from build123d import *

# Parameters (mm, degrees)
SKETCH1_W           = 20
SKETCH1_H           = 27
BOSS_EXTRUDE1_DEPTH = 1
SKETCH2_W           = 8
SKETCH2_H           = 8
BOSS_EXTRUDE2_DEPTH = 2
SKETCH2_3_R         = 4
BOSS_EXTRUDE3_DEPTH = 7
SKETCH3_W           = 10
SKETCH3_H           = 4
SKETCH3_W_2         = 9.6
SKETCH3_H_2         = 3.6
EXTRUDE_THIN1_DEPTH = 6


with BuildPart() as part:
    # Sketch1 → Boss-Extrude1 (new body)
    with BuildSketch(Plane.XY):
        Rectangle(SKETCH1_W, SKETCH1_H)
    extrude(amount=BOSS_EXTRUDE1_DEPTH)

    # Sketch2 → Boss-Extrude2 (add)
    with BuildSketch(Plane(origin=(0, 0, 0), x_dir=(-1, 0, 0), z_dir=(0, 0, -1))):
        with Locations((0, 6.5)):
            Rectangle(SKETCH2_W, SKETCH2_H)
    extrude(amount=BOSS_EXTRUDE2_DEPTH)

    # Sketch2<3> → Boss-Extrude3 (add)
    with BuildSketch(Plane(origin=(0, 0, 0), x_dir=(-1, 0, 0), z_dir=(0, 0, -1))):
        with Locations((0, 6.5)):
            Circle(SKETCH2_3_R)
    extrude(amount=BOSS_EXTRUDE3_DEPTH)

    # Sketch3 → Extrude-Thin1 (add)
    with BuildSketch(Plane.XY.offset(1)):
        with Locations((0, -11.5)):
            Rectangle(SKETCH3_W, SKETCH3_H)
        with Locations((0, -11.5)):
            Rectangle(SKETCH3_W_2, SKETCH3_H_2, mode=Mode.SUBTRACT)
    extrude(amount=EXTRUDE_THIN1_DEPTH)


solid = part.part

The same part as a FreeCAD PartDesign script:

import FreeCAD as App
import Part
import Sketcher
from FreeCAD import Vector
Q = App.Units.Quantity


def add_polygon(sketch, points):
    """Adds a closed chain of lines whose ends are joined by coincident constraints."""
    first, n = sketch.GeometryCount, len(points)
    for a, b in zip(points, points[1:] + points[:1]):
        sketch.addGeometry(Part.LineSegment(App.Vector(*a, 0), App.Vector(*b, 0)), False)
    for i in range(n):
        sketch.addConstraint(Sketcher.Constraint("Coincident", first + i, 2, first + (i + 1) % n, 1))

doc = App.newDocument("Part")
params = doc.addObject("Spreadsheet::Sheet", "Params")
for row, (alias, value) in enumerate([
    ("sketch1_width", "20 mm"),
    ("sketch1_height", "27 mm"),
    ("pad1_length", "1 mm"),
    ("sketch2_width", "8 mm"),
    ("pad2_length", "2 mm"),
    ("sketch3_diameter", "8 mm"),
    ("pad3_length", "7 mm"),
    ("sketch4_width", "10 mm"),
    ("sketch4_height", "4 mm"),
    ("sketch4_width2", "9.6 mm"),
    ("sketch4_height2", "3.6 mm"),
    ("pad4_length", "6 mm"),
], start=1):
    params.set(f"A{row}", alias)
    params.set(f"B{row}", "=" + value)
    params.setAlias(f"B{row}", alias)

body = doc.addObject("PartDesign::Body", "Body")

# Sketch on XY plane
sketch1 = body.newObject("Sketcher::SketchObject", "Sketch")
sketch1.AttachmentSupport = (doc.getObject("XY_Plane"), [""])
sketch1.MapMode = "FlatFace"
add_polygon(sketch1, [(-10, 14), (-10, -14), (10, -14), (10, 14)])  # lines 0-3
sketch1.addConstraint(Sketcher.Constraint("Vertical", 0))
sketch1.addConstraint(Sketcher.Constraint("Horizontal", 1))
sketch1.addConstraint(Sketcher.Constraint("Vertical", 2))
sketch1.addConstraint(Sketcher.Constraint("Horizontal", 3))
sketch1.addConstraint(Sketcher.Constraint("Symmetric", 0, 2, 2, 2, -1, 1))
sketch1.addConstraint(Sketcher.Constraint("DistanceX", 1, 1, 1, 2, Q("20 mm")))
sketch1.addConstraint(Sketcher.Constraint("DistanceY", 0, 2, 0, 1, Q("27 mm")))
sketch1.setExpression("Constraints[9]", "Params.sketch1_width")
sketch1.setExpression("Constraints[10]", "Params.sketch1_height")
pad1 = body.newObject("PartDesign::Pad", "Pad")
pad1.Profile = sketch1
pad1.setExpression("Length", "Params.pad1_length")

# Sketch on XY plane
sketch2 = body.newObject("Sketcher::SketchObject", "Sketch001")
sketch2.AttachmentSupport = (doc.getObject("XY_Plane"), [""])
sketch2.MapMode = "FlatFace"
add_polygon(sketch2, [(4, 10), (4, 2), (-4, 2), (-4, 10)])  # lines 0-3
sketch2.addConstraint(Sketcher.Constraint("Vertical", 0))
sketch2.addConstraint(Sketcher.Constraint("Horizontal", 1))
sketch2.addConstraint(Sketcher.Constraint("Vertical", 2))
sketch2.addConstraint(Sketcher.Constraint("Horizontal", 3))
sketch2.addConstraint(Sketcher.Constraint("Equal", 3, 0))
sketch2.addConstraint(Sketcher.Constraint("DistanceX", 1, 2, 1, 1, Q("8 mm")))
sketch2.addConstraint(Sketcher.Constraint("DistanceX", -1, 1, 0, 2, Q("4 mm")))
sketch2.addConstraint(Sketcher.Constraint("DistanceY", -1, 1, 0, 2, Q("2.5 mm")))
sketch2.setExpression("Constraints[9]", "Params.sketch2_width")
pad2 = body.newObject("PartDesign::Pad", "Pad001")
pad2.Profile = sketch2
pad2.setExpression("Length", "Params.pad2_length")
pad2.Reversed = True

# Sketch on XY plane
sketch3 = body.newObject("Sketcher::SketchObject", "Sketch002")
sketch3.AttachmentSupport = (doc.getObject("XY_Plane"), [""])
sketch3.MapMode = "FlatFace"
sketch3.addGeometry(Part.Circle(Vector(0, 6.5, 0), Vector(0, 0, 1), 4), False)
sketch3.addConstraint(Sketcher.Constraint("PointOnObject", 0, 3, -2))
sketch3.addConstraint(Sketcher.Constraint("Diameter", 0, Q("8 mm")))
sketch3.addConstraint(Sketcher.Constraint("DistanceY", -1, 1, 0, 3, Q("6.5 mm")))
sketch3.setExpression("Constraints[1]", "Params.sketch3_diameter")
pad3 = body.newObject("PartDesign::Pad", "Pad002")
pad3.Profile = sketch3
pad3.setExpression("Length", "Params.pad3_length")
pad3.Reversed = True

# Sketch on XY plane
sketch4 = body.newObject("Sketcher::SketchObject", "Sketch003")
sketch4.AttachmentSupport = (doc.getObject("XY_Plane"), [""])
sketch4.MapMode = "FlatFace"
sketch4.AttachmentOffset = App.Placement(Vector(0, 0, 1), App.Rotation())
add_polygon(sketch4, [(-5, -9.5), (-5, -13.5), (5, -13.5), (5, -9.5)])  # lines 0-3
add_polygon(sketch4, [(4.8, -13.3), (-4.8, -13.3), (-4.8, -9.7), (4.8, -9.7)])  # lines 4-7
sketch4.addConstraint(Sketcher.Constraint("Vertical", 0))
sketch4.addConstraint(Sketcher.Constraint("Horizontal", 1))
sketch4.addConstraint(Sketcher.Constraint("Vertical", 2))
sketch4.addConstraint(Sketcher.Constraint("Horizontal", 3))
sketch4.addConstraint(Sketcher.Constraint("Horizontal", 4))
sketch4.addConstraint(Sketcher.Constraint("Vertical", 5))
sketch4.addConstraint(Sketcher.Constraint("Horizontal", 6))
sketch4.addConstraint(Sketcher.Constraint("Vertical", 7))
sketch4.addConstraint(Sketcher.Constraint("DistanceX", 1, 1, 1, 2, Q("10 mm")))
sketch4.addConstraint(Sketcher.Constraint("DistanceY", 0, 2, 0, 1, Q("4 mm")))
sketch4.addConstraint(Sketcher.Constraint("DistanceX", 4, 2, 4, 1, Q("9.6 mm")))
sketch4.addConstraint(Sketcher.Constraint("DistanceY", 5, 1, 5, 2, Q("3.6 mm")))
sketch4.addConstraint(Sketcher.Constraint("DistanceX", 0, 2, -1, 1, Q("5 mm")))
sketch4.addConstraint(Sketcher.Constraint("DistanceY", 0, 2, -1, 1, Q("13.5 mm")))
sketch4.addConstraint(Sketcher.Constraint("DistanceX", 4, 2, -1, 1, Q("4.8 mm")))
sketch4.addConstraint(Sketcher.Constraint("DistanceY", 4, 2, -1, 1, Q("13.3 mm")))
sketch4.setExpression("Constraints[16]", "Params.sketch4_width")
sketch4.setExpression("Constraints[17]", "Params.sketch4_height")
sketch4.setExpression("Constraints[18]", "Params.sketch4_width2")
sketch4.setExpression("Constraints[19]", "Params.sketch4_height2")
pad4 = body.newObject("PartDesign::Pad", "Pad003")
pad4.Profile = sketch4
pad4.setExpression("Length", "Params.pad4_length")

doc.recompute()
